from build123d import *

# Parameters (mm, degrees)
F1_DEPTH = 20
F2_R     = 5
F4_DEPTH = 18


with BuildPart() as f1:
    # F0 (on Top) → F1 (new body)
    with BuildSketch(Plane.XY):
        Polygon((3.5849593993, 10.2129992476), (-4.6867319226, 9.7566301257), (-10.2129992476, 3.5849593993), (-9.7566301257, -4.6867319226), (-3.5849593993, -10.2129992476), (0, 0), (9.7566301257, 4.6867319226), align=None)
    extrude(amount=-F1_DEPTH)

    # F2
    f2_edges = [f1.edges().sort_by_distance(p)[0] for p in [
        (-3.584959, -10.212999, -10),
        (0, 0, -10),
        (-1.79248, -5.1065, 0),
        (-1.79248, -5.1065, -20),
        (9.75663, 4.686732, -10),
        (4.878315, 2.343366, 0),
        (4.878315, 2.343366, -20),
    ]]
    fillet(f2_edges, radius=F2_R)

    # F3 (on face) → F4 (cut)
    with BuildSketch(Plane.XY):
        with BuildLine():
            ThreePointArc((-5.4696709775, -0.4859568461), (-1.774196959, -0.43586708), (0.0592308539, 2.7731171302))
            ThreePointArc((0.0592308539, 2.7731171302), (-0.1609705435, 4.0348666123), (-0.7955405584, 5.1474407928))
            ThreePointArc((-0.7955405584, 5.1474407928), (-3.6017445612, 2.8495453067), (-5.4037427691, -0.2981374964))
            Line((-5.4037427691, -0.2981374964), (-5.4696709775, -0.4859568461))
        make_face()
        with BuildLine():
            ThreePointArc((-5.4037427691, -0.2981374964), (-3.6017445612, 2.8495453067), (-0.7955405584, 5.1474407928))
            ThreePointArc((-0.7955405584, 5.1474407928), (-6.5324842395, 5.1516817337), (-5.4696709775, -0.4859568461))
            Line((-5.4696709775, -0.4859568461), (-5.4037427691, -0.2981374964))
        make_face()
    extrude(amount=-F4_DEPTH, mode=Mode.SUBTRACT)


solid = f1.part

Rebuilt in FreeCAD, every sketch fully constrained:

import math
import FreeCAD as App
import Part
import Sketcher

V = App.Vector
Q = App.Units.Quantity


def edges_at(feature, points):
    """Names of the edges that pass closest to the given points."""
    edges = feature.Shape.Edges
    near = lambda p: min(range(len(edges)), key=lambda i: edges[i].distToShape(Part.Vertex(*p))[0])
    return sorted({f"Edge{near(p) + 1}" for p in points})

doc = App.newDocument("Part")
body = doc.addObject("PartDesign::Body", "Body")

sketch1 = doc.addObject("Sketcher::SketchObject", "Sketch")
body.addObject(sketch1)
sketch1.AttachmentSupport = (doc.XY_Plane, [""])
sketch1.MapMode = "FlatFace"
sketch1.addGeometry([
    Part.LineSegment(V(3.584959, 10.212999, 0), V(-4.686732, 9.75663, 0)),
    Part.LineSegment(V(-4.686732, 9.75663, 0), V(-10.212999, 3.584959, 0)),
    Part.LineSegment(V(-10.212999, 3.584959, 0), V(-9.75663, -4.686732, 0)),
    Part.LineSegment(V(-9.75663, -4.686732, 0), V(-3.584959, -10.212999, 0)),
    Part.LineSegment(V(-3.584959, -10.212999, 0), V(0, 0, 0)),
    Part.LineSegment(V(0, 0, 0), V(9.75663, 4.686732, 0)),
    Part.LineSegment(V(9.75663, 4.686732, 0), V(3.584959, 10.212999, 0)),
], False)
sketch1.addConstraint([
    Sketcher.Constraint("Coincident", 0, 2, 1, 1),
    Sketcher.Constraint("Coincident", 1, 2, 2, 1),
    Sketcher.Constraint("Coincident", 2, 2, 3, 1),
    Sketcher.Constraint("Coincident", 3, 2, 4, 1),
    Sketcher.Constraint("Coincident", 4, 2, 5, 1),
    Sketcher.Constraint("Coincident", 5, 2, 6, 1),
    Sketcher.Constraint("Coincident", 6, 2, 0, 1),
    Sketcher.Constraint("Coincident", 4, 2, -1, 1),
    Sketcher.Constraint("Symmetric", 2, 2, 5, 2, -1, 1),
    Sketcher.Constraint("Symmetric", 3, 2, 6, 2, -1, 1),
    Sketcher.Constraint("Perpendicular", 0, 2),
    Sketcher.Constraint("Perpendicular", 1, 3),
    Sketcher.Constraint("Equal", 0, 1),
    Sketcher.Constraint("Equal", 1, 2),
    Sketcher.Constraint("Equal", 2, 3),
    Sketcher.Constraint("Equal", 4, 5),
    Sketcher.Constraint("DistanceX", 1, 2, -1, 1, Q("10.212999 mm")),
    Sketcher.Constraint("DistanceX", 2, 2, 0, 2, Q("5.069898 mm")),
])
pad1 = doc.addObject("PartDesign::Pad", "Pad")
body.addObject(pad1)
pad1.Profile = sketch1
pad1.Length = 20
pad1.Reversed = True
doc.recompute()

fillet = doc.addObject("PartDesign::Fillet", "Fillet")
body.addObject(fillet)
fillet.Base = (pad1, edges_at(pad1, [
    (-3.585, -10.213, -10),
    (0, 0, -10),
    (-1.792, -5.106, 0),
    (-1.792, -5.106, -20),
    (9.757, 4.687, -10),
    (4.878, 2.343, 0),
    (4.878, 2.343, -20),
]))
fillet.Radius = 5

sketch2 = doc.addObject("Sketcher::SketchObject", "Sketch001")
body.addObject(sketch2)
sketch2.AttachmentSupport = (doc.XY_Plane, [""])
sketch2.MapMode = "FlatFace"
sketch2.addGeometry([
    Part.ArcOfCircle(Part.Circle(V(-3.665769, 2.773117, 0), V(0, 0, 1), 3.725), math.radians(-118.964587), math.radians(0)),
    Part.ArcOfCircle(Part.Circle(V(-3.665769, 2.773117, 0), V(0, 0, 1), 3.725), math.radians(0), math.radians(39.598389)),
    Part.ArcOfCircle(Part.Circle(V(-3.665769, 2.773117, 0), V(0, 0, 1), 3.725), math.radians(39.598389), math.radians(241.035413)),
], False)
sketch2.addConstraint([
    Sketcher.Constraint("Tangent", 0, 2, 1, 1),
    Sketcher.Constraint("Tangent", 1, 2, 2, 1),
    Sketcher.Constraint("Tangent", 2, 2, 0, 1),
    Sketcher.Constraint("Horizontal", 2, 3, 0, 2),
    Sketcher.Constraint("Radius", 0, Q("3.725 mm")),
    Sketcher.Constraint("DistanceX", 2, 2, 0, 3, Q("1.803902 mm")),
    Sketcher.Constraint("DistanceX", 0, 3, -1, 1, Q("3.665769 mm")),
    Sketcher.Constraint("DistanceX", 1, 2, -1, 1, Q("0.795541 mm")),
    Sketcher.Constraint("DistanceY", -1, 1, 1, 2, Q("5.147441 mm")),
])
pocket1 = doc.addObject("PartDesign::Pocket", "Pocket")
body.addObject(pocket1)
pocket1.Profile = sketch2
pocket1.Length = 18

doc.recompute()
